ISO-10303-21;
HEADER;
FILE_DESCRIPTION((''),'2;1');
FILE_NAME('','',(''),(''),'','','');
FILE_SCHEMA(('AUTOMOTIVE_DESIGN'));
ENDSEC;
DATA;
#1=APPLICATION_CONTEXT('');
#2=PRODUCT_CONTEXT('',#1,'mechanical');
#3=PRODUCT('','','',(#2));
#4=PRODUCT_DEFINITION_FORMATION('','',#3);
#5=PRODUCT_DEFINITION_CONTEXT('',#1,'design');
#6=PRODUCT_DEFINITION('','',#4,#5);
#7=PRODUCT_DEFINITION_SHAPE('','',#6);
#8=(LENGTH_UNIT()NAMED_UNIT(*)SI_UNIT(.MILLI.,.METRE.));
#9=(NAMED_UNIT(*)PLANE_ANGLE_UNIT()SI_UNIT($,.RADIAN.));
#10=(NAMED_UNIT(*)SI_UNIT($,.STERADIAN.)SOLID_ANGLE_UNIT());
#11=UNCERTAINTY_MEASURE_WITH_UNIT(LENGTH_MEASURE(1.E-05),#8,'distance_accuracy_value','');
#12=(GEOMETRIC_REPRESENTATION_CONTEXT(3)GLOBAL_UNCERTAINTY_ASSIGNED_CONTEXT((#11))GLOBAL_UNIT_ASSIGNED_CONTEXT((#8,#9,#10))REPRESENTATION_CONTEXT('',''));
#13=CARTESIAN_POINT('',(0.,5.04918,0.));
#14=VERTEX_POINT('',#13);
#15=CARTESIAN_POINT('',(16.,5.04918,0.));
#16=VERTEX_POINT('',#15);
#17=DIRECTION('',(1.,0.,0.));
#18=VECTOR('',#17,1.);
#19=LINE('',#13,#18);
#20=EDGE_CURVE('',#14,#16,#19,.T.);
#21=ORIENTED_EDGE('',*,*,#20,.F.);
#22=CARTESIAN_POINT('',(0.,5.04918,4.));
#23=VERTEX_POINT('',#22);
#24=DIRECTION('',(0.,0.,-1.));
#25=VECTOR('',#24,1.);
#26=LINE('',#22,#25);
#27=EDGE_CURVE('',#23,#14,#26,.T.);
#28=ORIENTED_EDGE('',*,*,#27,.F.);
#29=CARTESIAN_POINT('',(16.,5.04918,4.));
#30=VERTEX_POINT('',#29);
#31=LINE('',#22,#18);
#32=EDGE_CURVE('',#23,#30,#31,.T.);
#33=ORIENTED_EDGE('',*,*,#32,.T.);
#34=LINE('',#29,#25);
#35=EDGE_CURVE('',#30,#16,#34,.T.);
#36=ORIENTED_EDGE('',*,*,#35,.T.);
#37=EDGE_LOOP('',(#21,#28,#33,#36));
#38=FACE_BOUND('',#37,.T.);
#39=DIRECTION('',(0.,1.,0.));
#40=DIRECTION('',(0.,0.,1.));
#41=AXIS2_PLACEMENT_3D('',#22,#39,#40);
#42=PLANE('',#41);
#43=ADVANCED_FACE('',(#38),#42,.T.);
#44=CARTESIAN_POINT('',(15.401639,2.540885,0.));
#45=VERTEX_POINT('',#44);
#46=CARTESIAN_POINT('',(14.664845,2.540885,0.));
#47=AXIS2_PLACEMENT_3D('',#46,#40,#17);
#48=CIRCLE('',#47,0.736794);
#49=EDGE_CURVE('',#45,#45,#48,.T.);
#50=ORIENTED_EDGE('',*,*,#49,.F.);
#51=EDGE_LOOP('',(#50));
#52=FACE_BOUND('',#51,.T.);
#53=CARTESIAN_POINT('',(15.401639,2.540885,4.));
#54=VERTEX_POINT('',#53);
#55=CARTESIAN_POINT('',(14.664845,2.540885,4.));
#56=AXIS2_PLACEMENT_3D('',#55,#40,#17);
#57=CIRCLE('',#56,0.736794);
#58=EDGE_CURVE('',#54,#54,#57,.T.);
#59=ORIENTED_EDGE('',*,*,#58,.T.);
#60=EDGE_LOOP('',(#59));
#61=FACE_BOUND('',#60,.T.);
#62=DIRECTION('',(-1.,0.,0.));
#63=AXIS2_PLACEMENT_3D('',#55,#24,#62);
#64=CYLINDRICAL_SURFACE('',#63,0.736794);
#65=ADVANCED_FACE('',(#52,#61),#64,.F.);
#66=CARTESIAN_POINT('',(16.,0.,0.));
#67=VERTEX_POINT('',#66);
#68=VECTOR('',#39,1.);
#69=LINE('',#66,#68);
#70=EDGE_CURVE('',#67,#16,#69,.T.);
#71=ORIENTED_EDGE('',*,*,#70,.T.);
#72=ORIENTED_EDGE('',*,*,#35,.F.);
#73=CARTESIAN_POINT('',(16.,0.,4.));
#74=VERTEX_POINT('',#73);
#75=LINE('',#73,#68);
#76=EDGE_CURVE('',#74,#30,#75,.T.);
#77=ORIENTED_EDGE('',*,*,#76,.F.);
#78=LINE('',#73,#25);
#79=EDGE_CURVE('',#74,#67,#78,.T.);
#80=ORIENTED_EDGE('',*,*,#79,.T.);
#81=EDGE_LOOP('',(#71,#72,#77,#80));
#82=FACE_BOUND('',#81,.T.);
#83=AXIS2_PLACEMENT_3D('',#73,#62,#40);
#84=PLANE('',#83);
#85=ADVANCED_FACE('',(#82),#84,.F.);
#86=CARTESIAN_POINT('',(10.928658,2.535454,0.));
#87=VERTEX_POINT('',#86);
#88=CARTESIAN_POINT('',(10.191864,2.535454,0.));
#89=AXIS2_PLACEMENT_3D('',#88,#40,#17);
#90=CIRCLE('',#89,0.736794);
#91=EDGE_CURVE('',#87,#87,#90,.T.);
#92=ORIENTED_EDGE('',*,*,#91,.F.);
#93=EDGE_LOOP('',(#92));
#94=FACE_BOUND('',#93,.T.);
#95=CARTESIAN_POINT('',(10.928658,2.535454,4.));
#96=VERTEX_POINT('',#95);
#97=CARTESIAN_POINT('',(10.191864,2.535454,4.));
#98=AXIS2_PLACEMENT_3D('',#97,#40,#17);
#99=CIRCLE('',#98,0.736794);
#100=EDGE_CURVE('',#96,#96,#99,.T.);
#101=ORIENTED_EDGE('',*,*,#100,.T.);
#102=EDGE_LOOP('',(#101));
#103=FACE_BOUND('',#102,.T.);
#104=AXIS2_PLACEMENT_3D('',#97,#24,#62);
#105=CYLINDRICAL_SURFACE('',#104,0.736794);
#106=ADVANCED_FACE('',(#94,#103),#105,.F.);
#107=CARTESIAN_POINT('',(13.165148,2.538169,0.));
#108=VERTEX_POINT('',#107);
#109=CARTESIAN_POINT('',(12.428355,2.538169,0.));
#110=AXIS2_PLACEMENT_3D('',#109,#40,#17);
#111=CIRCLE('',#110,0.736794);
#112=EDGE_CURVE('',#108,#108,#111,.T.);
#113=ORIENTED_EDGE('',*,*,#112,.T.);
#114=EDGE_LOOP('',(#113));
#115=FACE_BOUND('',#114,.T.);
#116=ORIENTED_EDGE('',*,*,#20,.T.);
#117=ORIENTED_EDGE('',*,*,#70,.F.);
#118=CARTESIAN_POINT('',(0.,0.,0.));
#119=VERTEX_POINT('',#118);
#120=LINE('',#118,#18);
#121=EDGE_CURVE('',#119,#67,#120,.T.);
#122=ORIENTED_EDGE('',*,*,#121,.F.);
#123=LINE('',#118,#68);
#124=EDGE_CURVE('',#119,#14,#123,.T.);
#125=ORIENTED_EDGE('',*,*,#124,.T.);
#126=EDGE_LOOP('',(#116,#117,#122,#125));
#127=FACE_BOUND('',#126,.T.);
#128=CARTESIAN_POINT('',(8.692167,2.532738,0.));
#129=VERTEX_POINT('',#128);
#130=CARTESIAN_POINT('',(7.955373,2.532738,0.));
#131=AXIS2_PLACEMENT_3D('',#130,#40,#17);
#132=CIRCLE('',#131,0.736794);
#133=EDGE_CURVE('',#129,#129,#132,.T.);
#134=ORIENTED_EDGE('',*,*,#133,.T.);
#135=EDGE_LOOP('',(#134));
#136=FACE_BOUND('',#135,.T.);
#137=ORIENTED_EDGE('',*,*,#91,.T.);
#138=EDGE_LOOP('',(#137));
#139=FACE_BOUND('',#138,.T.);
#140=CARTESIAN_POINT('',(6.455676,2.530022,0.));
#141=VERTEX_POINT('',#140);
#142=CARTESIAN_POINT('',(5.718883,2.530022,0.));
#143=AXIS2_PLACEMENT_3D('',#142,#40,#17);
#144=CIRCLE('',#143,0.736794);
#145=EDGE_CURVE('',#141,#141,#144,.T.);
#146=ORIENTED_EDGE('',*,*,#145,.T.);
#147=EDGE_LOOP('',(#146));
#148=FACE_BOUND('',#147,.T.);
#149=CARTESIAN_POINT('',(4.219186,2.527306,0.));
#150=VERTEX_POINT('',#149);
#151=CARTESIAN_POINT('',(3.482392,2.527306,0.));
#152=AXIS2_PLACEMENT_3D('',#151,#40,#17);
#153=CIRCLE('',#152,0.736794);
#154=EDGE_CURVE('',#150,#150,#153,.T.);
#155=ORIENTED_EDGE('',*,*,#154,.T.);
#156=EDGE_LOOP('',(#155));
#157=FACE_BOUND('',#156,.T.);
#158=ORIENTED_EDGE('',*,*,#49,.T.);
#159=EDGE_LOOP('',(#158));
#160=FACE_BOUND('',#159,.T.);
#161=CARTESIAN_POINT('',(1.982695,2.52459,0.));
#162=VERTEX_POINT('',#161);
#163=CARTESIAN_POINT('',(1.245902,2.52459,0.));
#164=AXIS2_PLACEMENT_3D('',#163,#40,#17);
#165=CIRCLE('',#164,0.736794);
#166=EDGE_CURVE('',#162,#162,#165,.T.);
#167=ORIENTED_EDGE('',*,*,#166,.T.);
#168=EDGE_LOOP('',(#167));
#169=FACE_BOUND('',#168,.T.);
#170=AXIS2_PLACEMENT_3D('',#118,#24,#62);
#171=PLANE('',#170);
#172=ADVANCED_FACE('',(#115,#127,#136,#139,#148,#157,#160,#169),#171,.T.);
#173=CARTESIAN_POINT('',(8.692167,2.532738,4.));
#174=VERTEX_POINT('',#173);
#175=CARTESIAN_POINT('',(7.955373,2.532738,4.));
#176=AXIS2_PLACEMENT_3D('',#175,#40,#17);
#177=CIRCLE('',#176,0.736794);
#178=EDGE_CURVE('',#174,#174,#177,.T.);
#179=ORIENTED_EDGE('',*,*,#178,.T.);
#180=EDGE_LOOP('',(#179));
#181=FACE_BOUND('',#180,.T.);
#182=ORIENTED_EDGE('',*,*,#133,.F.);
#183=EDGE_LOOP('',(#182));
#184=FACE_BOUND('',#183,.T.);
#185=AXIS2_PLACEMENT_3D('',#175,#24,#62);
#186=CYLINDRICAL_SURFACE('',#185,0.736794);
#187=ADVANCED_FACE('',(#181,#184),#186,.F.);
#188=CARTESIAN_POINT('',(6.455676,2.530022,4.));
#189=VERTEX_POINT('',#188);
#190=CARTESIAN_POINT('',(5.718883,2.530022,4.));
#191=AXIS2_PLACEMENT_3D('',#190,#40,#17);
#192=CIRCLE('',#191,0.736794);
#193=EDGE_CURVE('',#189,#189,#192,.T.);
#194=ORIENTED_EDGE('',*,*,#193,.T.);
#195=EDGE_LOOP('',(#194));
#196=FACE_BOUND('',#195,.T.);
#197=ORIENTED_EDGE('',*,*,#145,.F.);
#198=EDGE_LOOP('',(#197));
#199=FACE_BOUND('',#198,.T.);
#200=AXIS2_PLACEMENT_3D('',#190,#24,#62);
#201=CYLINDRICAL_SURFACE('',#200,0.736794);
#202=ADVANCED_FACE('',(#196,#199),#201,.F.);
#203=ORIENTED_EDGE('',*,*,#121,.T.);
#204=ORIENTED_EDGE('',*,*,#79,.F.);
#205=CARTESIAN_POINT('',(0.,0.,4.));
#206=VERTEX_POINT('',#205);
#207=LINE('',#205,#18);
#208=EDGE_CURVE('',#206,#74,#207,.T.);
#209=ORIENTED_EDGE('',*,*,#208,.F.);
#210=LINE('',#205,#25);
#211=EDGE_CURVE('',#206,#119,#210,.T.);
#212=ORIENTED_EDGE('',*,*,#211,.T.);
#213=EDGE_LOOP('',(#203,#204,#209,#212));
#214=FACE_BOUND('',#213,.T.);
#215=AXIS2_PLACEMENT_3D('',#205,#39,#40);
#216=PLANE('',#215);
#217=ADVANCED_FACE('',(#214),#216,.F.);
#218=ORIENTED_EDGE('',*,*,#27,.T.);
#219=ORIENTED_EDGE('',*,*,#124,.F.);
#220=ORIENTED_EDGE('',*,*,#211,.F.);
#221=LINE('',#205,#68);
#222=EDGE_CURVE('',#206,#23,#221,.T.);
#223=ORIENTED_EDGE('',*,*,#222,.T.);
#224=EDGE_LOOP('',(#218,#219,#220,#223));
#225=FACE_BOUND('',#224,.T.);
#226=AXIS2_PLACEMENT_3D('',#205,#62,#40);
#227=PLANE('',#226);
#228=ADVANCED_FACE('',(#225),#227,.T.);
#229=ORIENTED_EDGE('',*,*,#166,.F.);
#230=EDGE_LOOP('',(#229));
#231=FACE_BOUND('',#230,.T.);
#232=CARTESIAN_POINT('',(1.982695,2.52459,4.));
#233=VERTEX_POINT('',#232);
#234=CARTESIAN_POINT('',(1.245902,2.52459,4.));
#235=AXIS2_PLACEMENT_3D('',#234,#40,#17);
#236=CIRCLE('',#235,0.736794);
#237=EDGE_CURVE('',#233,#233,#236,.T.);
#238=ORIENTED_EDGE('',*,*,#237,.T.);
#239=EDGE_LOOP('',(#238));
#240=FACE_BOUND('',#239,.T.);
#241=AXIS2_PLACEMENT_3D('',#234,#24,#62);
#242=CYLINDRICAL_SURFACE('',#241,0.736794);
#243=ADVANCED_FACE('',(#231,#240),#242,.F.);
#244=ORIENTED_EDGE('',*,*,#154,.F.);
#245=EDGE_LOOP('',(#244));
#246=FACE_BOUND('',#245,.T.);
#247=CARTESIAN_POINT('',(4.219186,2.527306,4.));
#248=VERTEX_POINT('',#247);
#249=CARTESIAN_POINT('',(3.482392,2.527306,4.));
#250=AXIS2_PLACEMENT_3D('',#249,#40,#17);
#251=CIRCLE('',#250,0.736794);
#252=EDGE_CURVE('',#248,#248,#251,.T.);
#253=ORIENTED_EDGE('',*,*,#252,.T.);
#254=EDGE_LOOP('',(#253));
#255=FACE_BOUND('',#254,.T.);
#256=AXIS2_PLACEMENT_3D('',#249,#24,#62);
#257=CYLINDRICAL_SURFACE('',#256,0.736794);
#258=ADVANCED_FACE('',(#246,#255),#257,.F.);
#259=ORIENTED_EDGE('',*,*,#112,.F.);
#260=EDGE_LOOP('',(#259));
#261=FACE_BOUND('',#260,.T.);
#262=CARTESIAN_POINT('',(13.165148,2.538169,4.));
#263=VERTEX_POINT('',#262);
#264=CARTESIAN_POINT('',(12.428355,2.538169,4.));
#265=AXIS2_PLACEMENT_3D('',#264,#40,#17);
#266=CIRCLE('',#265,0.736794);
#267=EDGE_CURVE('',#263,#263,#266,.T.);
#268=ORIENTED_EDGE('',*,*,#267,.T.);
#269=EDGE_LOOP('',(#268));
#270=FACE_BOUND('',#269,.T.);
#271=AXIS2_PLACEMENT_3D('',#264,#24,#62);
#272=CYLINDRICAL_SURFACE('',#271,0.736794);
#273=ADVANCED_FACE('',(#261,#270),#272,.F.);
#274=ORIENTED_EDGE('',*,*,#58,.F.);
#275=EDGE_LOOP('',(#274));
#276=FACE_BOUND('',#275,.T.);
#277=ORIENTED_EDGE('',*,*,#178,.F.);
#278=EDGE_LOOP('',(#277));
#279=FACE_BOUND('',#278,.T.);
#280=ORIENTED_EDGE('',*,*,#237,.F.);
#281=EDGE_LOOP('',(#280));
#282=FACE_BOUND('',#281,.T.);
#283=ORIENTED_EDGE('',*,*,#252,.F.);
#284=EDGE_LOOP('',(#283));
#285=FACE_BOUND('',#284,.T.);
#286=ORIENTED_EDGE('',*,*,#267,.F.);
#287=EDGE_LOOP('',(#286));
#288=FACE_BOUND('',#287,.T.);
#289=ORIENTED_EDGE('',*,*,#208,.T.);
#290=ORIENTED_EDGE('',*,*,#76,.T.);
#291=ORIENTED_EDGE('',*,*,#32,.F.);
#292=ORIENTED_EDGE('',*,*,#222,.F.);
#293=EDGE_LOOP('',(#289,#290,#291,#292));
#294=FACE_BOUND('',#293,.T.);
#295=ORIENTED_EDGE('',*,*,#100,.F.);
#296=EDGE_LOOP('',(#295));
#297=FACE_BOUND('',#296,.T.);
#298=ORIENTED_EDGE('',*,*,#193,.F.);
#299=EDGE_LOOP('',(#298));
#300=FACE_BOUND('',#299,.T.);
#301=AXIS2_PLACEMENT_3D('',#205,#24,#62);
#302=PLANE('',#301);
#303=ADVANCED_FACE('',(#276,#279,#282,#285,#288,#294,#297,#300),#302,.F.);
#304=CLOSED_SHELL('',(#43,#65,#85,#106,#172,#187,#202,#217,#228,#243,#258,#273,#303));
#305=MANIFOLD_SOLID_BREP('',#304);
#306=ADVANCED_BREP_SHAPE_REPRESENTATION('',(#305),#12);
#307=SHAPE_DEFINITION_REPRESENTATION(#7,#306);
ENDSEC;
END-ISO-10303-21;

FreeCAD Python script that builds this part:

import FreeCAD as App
import Part
import Sketcher

V = App.Vector

doc = App.newDocument("Part")
body = doc.addObject("PartDesign::Body", "Body")

sketch1 = body.newObject("Sketcher::SketchObject", "Sketch")
sketch1.AttachmentSupport = (doc.getObject("XY_Plane"), [""])
sketch1.MapMode = "FlatFace"
sketch1.addGeometry([
    Part.LineSegment(V(0, 5, 0), V(0, 0, 0)),
    Part.LineSegment(V(0, 0, 0), V(16, 0, 0)),
    Part.LineSegment(V(16, 0, 0), V(16, 5, 0)),
    Part.LineSegment(V(16, 5, 0), V(0, 5, 0)),
    Part.Circle(V(1.2, 2.5, 0), V(0, 0, 1), 0.7),
    Part.Circle(V(3.5, 2.5, 0), V(0, 0, 1), 0.7),
    Part.Circle(V(5.7, 2.5, 0), V(0, 0, 1), 0.7),
    Part.Circle(V(8, 2.5, 0), V(0, 0, 1), 0.7),
    Part.Circle(V(10.2, 2.5, 0), V(0, 0, 1), 0.7),
    Part.Circle(V(12.4, 2.5, 0), V(0, 0, 1), 0.7),
    Part.Circle(V(14.7, 2.5, 0), V(0, 0, 1), 0.7),
], False)
sketch1.addConstraint([
    Sketcher.Constraint("Coincident", 0, 2, 1, 1),
    Sketcher.Constraint("Coincident", 1, 2, 2, 1),
    Sketcher.Constraint("Coincident", 2, 2, 3, 1),
    Sketcher.Constraint("Coincident", 3, 2, 0, 1),
    Sketcher.Constraint("Vertical", 0),
    Sketcher.Constraint("Horizontal", 1),
    Sketcher.Constraint("Vertical", 2),
    Sketcher.Constraint("Horizontal", 3),
    Sketcher.Constraint("Coincident", 0, 2, -1, 1),
    Sketcher.Constraint("Equal", 4, 5),
    Sketcher.Constraint("Equal", 5, 6),
    Sketcher.Constraint("Equal", 6, 7),
    Sketcher.Constraint("Equal", 7, 8),
    Sketcher.Constraint("Equal", 8, 9),
    Sketcher.Constraint("Equal", 9, 10),
    Sketcher.Constraint("DistanceX", 1, 1, 1, 2, 16.0),
    Sketcher.Constraint("Diameter", 4, 1.473587),
    Sketcher.Constraint("DistanceY", 0, 2, 0, 1, 5.04918),
    Sketcher.Constraint("DistanceX", -1, 1, 4, 3, 1.245902),
    Sketcher.Constraint("DistanceY", -1, 1, 4, 3, 2.52459),
    Sketcher.Constraint("DistanceY", -1, 1, 6, 3, 2.530022),
    Sketcher.Constraint("DistanceY", -1, 1, 9, 3, 2.538169),
    Sketcher.Constraint("DistanceX", 4, 3, 5, 3, 2.236491),
    Sketcher.Constraint("DistanceX", 5, 3, 6, 3, 2.236491),
    Sketcher.Constraint("DistanceX", 6, 3, 7, 3, 2.236491),
    Sketcher.Constraint("DistanceY", 5, 3, 7, 3, 0.005432),
    Sketcher.Constraint("DistanceX", 7, 3, 8, 3, 2.236491),
    Sketcher.Constraint("DistanceY", 6, 3, 8, 3, 0.005432),
    Sketcher.Constraint("DistanceX", 8, 3, 9, 3, 2.236491),
    Sketcher.Constraint("DistanceY", 7, 3, 9, 3, 0.005432),
    Sketcher.Constraint("DistanceX", 9, 3, 10, 3, 2.236491),
    Sketcher.Constraint("DistanceY", 8, 3, 10, 3, 0.005432),
])
pad1 = body.newObject("PartDesign::Pad", "Pad")
pad1.Profile = sketch1
pad1.Length = 4

doc.recompute()
